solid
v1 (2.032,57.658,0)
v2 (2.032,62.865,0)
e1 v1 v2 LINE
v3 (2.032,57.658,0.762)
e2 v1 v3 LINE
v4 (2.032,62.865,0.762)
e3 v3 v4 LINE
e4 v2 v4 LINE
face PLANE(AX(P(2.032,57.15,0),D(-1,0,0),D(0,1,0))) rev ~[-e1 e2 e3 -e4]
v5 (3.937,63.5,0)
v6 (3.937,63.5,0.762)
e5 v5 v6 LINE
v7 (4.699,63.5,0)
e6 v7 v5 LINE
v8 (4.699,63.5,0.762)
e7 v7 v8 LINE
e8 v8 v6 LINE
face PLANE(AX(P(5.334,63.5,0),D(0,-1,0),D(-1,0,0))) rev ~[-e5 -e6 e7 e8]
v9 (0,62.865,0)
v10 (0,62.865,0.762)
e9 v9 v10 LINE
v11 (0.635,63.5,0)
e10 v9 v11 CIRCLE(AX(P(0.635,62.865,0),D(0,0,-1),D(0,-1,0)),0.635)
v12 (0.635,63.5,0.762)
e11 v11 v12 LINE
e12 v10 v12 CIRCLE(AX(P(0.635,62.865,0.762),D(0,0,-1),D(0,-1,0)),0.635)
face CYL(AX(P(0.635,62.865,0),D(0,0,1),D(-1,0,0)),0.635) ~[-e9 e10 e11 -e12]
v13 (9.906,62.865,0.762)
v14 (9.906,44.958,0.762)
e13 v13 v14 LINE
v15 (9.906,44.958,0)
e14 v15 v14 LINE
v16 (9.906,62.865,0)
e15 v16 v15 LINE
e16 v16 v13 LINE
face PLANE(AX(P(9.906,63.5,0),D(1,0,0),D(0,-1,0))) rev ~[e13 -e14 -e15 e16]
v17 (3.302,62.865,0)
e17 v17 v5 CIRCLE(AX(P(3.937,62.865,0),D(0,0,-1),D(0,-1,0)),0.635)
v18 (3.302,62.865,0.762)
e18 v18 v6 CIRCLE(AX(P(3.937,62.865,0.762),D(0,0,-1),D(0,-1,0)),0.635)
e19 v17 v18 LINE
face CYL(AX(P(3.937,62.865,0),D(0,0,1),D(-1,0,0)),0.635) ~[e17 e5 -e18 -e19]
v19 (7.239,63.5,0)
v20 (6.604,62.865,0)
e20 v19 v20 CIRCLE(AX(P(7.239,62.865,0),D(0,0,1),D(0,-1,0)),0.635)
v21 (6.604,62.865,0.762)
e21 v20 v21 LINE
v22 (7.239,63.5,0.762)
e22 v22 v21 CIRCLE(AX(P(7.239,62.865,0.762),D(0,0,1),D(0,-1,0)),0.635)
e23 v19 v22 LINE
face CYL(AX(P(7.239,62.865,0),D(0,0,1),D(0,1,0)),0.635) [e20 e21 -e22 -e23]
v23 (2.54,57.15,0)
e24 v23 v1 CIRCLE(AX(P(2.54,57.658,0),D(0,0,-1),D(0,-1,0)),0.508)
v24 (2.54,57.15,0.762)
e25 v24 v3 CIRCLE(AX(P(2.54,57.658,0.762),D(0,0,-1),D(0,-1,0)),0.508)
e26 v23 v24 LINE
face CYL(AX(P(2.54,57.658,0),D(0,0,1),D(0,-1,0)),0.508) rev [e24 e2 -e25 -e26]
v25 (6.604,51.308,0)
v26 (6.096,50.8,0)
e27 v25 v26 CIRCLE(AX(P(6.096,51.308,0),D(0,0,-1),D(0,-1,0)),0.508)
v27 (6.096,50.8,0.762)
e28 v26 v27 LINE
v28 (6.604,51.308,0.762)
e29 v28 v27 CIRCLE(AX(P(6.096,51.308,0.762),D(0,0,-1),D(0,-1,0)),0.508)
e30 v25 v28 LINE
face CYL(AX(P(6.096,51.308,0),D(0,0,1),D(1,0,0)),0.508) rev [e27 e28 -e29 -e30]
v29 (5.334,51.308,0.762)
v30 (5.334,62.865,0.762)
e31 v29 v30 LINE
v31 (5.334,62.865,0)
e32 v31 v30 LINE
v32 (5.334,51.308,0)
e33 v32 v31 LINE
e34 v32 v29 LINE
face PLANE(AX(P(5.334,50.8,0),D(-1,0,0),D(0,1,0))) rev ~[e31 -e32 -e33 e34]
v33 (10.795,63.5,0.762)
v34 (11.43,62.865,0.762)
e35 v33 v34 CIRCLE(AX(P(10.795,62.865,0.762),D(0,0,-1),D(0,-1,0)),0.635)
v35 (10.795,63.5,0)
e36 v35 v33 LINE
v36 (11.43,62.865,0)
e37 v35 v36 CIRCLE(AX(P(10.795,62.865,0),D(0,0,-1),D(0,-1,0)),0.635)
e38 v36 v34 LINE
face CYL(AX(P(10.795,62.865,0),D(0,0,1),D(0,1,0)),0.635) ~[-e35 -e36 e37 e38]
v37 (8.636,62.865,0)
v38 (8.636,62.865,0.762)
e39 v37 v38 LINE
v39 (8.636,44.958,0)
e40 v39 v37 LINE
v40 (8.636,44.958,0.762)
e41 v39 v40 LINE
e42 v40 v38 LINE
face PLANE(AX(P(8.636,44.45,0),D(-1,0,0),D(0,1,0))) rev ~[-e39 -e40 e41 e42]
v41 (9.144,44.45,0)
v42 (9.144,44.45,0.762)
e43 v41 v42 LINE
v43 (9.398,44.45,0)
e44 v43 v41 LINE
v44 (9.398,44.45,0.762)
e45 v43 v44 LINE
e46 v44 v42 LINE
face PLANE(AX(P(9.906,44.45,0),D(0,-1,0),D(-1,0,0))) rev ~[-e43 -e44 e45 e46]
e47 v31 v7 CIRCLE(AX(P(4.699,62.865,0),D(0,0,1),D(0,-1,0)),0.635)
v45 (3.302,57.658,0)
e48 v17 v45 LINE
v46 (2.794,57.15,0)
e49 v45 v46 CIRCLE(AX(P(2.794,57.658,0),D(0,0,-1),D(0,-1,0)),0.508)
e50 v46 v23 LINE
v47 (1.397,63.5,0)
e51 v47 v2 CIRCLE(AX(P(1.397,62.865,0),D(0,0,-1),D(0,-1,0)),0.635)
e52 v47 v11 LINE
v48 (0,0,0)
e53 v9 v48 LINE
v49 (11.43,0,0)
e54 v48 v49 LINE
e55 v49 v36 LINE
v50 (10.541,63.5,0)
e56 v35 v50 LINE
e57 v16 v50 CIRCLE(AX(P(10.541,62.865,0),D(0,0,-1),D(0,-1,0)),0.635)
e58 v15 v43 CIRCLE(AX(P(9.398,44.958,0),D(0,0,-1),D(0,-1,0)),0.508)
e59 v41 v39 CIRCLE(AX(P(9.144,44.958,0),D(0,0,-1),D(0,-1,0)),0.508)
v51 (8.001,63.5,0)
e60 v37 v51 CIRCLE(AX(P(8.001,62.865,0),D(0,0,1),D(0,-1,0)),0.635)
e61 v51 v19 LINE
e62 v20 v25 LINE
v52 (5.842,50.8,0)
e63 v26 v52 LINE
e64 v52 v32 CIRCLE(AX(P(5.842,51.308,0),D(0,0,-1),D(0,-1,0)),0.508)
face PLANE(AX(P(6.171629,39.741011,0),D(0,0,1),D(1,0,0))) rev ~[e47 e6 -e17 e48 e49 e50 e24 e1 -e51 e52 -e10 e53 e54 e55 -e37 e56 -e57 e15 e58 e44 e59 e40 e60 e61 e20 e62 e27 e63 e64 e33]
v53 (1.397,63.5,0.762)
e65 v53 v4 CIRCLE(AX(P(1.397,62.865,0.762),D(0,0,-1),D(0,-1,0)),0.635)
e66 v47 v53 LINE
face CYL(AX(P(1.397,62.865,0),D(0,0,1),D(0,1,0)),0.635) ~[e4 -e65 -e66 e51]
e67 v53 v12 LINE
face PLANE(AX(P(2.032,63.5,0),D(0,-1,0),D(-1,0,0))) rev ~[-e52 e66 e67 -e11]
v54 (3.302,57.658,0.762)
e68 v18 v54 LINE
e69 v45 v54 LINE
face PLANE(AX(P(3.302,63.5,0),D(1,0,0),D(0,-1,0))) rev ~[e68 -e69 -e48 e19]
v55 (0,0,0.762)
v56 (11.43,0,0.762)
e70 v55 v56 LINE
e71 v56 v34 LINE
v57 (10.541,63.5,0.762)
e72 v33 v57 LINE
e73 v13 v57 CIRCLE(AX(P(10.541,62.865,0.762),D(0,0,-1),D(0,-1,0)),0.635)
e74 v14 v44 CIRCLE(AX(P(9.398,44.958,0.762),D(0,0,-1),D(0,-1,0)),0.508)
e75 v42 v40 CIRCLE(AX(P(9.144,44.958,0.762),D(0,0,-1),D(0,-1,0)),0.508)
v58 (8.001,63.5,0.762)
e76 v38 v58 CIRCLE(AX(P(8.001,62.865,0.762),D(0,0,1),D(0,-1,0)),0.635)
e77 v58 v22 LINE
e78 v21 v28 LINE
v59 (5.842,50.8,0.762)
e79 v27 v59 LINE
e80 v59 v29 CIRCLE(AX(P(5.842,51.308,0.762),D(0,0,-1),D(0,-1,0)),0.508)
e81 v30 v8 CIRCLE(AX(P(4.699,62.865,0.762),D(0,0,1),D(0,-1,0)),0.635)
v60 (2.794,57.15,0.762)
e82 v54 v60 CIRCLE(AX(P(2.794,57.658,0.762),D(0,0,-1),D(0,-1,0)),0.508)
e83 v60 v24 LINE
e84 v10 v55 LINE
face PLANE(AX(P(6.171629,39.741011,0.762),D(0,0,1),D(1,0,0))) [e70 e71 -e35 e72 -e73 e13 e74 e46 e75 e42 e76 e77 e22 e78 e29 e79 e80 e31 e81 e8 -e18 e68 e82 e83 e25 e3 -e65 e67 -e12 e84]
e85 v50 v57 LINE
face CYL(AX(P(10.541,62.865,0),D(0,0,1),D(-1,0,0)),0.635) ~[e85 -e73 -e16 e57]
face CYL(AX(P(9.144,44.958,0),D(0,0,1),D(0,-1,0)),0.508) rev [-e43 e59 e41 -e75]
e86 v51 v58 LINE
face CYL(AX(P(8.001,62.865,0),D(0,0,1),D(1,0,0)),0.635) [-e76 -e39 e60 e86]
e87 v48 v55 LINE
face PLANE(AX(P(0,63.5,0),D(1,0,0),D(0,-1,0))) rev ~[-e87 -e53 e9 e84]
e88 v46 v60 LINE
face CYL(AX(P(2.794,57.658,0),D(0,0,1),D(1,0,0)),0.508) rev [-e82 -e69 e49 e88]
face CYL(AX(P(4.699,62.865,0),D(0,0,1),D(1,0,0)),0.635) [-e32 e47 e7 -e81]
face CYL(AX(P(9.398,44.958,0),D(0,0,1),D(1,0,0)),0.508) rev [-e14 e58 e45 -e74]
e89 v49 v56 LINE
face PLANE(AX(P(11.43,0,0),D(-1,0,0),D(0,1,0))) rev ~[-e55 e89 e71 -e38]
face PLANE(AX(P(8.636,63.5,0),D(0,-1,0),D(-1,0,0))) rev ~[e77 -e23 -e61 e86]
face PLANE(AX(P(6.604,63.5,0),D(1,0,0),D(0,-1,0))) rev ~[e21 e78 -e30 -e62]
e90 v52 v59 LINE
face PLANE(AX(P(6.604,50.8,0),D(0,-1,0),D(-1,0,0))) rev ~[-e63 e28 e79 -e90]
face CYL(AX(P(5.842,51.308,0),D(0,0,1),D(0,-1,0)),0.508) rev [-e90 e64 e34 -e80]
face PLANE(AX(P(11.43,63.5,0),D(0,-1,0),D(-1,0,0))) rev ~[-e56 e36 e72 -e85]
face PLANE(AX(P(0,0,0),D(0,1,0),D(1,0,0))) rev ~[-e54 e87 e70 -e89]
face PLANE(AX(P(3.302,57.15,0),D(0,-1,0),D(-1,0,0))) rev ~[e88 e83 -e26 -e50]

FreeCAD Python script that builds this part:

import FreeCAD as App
import Part
import Sketcher

V = App.Vector
Q = App.Units.Quantity


def edges_at(feature, points):
    """Names of the edges that pass closest to the given points."""
    edges = feature.Shape.Edges
    near = lambda p: min(range(len(edges)), key=lambda i: edges[i].distToShape(Part.Vertex(*p))[0])
    return sorted({f"Edge{near(p) + 1}" for p in points})


def add_polygon(sketch, points):
    """Adds a closed chain of lines whose ends are joined by coincident constraints."""
    first, n = sketch.GeometryCount, len(points)
    for a, b in zip(points, points[1:] + points[:1]):
        sketch.addGeometry(Part.LineSegment(App.Vector(*a, 0), App.Vector(*b, 0)), False)
    for i in range(n):
        sketch.addConstraint(Sketcher.Constraint("Coincident", first + i, 2, first + (i + 1) % n, 1))

doc = App.newDocument("Part")
body = doc.addObject("PartDesign::Body", "Body")

sketch1 = doc.addObject("Sketcher::SketchObject", "Sketch")
body.addObject(sketch1)
sketch1.AttachmentSupport = (doc.XY_Plane, [""])
sketch1.MapMode = "FlatFace"
add_polygon(sketch1, [(0, 63.5), (0, 0), (11.43, 0), (11.43, 63.5), (9.906, 63.5), (9.906, 44.45), (8.636, 44.45), (8.636, 63.5), (6.604, 63.5), (6.604, 50.8), (5.334, 50.8), (5.334, 63.5), (3.302, 63.5), (3.302, 57.15), (2.032, 57.15), (2.032, 63.5)])
sketch1.addConstraint([
    Sketcher.Constraint("Vertical", 0),
    Sketcher.Constraint("Horizontal", 1),
    Sketcher.Constraint("Vertical", 2),
    Sketcher.Constraint("Horizontal", 3),
    Sketcher.Constraint("Vertical", 4),
    Sketcher.Constraint("Horizontal", 5),
    Sketcher.Constraint("Vertical", 6),
    Sketcher.Constraint("Horizontal", 7),
    Sketcher.Constraint("Vertical", 8),
    Sketcher.Constraint("Horizontal", 9),
    Sketcher.Constraint("Vertical", 10),
    Sketcher.Constraint("Horizontal", 11),
    Sketcher.Constraint("Vertical", 12),
    Sketcher.Constraint("Horizontal", 13),
    Sketcher.Constraint("Vertical", 14),
    Sketcher.Constraint("Horizontal", 15),
    Sketcher.Constraint("Coincident", 0, 2, -1, 1),
    Sketcher.Constraint("Horizontal", 3, 2, 6, 2),
    Sketcher.Constraint("Horizontal", 7, 2, 10, 2),
    Sketcher.Constraint("Horizontal", 11, 2, 14, 2),
    Sketcher.Constraint("Equal", 5, 9),
    Sketcher.Constraint("Equal", 7, 11),
    Sketcher.Constraint("Equal", 9, 13),
    Sketcher.Constraint("Equal", 11, 15),
    Sketcher.Constraint("DistanceY", 0, 2, 0, 1, Q("2.5 in")),
    Sketcher.Constraint("DistanceY", 8, 2, 8, 1, Q("0.5 in")),
    Sketcher.Constraint("DistanceX", 1, 1, 1, 2, Q("0.45 in")),
    Sketcher.Constraint("DistanceX", 3, 2, 3, 1, Q("0.06 in")),
    Sketcher.Constraint("DistanceX", 5, 2, 5, 1, Q("0.05 in")),
    Sketcher.Constraint("DistanceY", 4, 2, 4, 1, Q("0.75 in")),
    Sketcher.Constraint("DistanceY", 12, 2, 12, 1, Q("0.25 in")),
])
pad1 = doc.addObject("PartDesign::Pad", "Pad")
body.addObject(pad1)
pad1.Profile = sketch1
pad1.Length = Q("0.03 in")
doc.recompute()

fillet = doc.addObject("PartDesign::Fillet", "Fillet")
body.addObject(fillet)
fillet.Base = (pad1, edges_at(pad1, [
    (2.032, 57.15, 0.381),
    (3.302, 57.15, 0.381),
    (5.334, 50.8, 0.381),
    (6.604, 50.8, 0.381),
    (9.906, 44.45, 0.381),
    (8.636, 44.45, 0.381),
]))
fillet.Radius = Q("0.02 in")
doc.recompute()

fillet2 = doc.addObject("PartDesign::Fillet", "Fillet001")
body.addObject(fillet2)
fillet2.Base = (fillet, edges_at(fillet, [
    (0, 63.5, 0.381),
    (2.032, 63.5, 0.381),
    (3.302, 63.5, 0.381),
    (5.334, 63.5, 0.381),
    (6.604, 63.5, 0.381),
    (8.636, 63.5, 0.381),
    (9.906, 63.5, 0.381),
    (11.43, 63.5, 0.381),
]))
fillet2.Radius = Q("0.025 in")

doc.recompute()
